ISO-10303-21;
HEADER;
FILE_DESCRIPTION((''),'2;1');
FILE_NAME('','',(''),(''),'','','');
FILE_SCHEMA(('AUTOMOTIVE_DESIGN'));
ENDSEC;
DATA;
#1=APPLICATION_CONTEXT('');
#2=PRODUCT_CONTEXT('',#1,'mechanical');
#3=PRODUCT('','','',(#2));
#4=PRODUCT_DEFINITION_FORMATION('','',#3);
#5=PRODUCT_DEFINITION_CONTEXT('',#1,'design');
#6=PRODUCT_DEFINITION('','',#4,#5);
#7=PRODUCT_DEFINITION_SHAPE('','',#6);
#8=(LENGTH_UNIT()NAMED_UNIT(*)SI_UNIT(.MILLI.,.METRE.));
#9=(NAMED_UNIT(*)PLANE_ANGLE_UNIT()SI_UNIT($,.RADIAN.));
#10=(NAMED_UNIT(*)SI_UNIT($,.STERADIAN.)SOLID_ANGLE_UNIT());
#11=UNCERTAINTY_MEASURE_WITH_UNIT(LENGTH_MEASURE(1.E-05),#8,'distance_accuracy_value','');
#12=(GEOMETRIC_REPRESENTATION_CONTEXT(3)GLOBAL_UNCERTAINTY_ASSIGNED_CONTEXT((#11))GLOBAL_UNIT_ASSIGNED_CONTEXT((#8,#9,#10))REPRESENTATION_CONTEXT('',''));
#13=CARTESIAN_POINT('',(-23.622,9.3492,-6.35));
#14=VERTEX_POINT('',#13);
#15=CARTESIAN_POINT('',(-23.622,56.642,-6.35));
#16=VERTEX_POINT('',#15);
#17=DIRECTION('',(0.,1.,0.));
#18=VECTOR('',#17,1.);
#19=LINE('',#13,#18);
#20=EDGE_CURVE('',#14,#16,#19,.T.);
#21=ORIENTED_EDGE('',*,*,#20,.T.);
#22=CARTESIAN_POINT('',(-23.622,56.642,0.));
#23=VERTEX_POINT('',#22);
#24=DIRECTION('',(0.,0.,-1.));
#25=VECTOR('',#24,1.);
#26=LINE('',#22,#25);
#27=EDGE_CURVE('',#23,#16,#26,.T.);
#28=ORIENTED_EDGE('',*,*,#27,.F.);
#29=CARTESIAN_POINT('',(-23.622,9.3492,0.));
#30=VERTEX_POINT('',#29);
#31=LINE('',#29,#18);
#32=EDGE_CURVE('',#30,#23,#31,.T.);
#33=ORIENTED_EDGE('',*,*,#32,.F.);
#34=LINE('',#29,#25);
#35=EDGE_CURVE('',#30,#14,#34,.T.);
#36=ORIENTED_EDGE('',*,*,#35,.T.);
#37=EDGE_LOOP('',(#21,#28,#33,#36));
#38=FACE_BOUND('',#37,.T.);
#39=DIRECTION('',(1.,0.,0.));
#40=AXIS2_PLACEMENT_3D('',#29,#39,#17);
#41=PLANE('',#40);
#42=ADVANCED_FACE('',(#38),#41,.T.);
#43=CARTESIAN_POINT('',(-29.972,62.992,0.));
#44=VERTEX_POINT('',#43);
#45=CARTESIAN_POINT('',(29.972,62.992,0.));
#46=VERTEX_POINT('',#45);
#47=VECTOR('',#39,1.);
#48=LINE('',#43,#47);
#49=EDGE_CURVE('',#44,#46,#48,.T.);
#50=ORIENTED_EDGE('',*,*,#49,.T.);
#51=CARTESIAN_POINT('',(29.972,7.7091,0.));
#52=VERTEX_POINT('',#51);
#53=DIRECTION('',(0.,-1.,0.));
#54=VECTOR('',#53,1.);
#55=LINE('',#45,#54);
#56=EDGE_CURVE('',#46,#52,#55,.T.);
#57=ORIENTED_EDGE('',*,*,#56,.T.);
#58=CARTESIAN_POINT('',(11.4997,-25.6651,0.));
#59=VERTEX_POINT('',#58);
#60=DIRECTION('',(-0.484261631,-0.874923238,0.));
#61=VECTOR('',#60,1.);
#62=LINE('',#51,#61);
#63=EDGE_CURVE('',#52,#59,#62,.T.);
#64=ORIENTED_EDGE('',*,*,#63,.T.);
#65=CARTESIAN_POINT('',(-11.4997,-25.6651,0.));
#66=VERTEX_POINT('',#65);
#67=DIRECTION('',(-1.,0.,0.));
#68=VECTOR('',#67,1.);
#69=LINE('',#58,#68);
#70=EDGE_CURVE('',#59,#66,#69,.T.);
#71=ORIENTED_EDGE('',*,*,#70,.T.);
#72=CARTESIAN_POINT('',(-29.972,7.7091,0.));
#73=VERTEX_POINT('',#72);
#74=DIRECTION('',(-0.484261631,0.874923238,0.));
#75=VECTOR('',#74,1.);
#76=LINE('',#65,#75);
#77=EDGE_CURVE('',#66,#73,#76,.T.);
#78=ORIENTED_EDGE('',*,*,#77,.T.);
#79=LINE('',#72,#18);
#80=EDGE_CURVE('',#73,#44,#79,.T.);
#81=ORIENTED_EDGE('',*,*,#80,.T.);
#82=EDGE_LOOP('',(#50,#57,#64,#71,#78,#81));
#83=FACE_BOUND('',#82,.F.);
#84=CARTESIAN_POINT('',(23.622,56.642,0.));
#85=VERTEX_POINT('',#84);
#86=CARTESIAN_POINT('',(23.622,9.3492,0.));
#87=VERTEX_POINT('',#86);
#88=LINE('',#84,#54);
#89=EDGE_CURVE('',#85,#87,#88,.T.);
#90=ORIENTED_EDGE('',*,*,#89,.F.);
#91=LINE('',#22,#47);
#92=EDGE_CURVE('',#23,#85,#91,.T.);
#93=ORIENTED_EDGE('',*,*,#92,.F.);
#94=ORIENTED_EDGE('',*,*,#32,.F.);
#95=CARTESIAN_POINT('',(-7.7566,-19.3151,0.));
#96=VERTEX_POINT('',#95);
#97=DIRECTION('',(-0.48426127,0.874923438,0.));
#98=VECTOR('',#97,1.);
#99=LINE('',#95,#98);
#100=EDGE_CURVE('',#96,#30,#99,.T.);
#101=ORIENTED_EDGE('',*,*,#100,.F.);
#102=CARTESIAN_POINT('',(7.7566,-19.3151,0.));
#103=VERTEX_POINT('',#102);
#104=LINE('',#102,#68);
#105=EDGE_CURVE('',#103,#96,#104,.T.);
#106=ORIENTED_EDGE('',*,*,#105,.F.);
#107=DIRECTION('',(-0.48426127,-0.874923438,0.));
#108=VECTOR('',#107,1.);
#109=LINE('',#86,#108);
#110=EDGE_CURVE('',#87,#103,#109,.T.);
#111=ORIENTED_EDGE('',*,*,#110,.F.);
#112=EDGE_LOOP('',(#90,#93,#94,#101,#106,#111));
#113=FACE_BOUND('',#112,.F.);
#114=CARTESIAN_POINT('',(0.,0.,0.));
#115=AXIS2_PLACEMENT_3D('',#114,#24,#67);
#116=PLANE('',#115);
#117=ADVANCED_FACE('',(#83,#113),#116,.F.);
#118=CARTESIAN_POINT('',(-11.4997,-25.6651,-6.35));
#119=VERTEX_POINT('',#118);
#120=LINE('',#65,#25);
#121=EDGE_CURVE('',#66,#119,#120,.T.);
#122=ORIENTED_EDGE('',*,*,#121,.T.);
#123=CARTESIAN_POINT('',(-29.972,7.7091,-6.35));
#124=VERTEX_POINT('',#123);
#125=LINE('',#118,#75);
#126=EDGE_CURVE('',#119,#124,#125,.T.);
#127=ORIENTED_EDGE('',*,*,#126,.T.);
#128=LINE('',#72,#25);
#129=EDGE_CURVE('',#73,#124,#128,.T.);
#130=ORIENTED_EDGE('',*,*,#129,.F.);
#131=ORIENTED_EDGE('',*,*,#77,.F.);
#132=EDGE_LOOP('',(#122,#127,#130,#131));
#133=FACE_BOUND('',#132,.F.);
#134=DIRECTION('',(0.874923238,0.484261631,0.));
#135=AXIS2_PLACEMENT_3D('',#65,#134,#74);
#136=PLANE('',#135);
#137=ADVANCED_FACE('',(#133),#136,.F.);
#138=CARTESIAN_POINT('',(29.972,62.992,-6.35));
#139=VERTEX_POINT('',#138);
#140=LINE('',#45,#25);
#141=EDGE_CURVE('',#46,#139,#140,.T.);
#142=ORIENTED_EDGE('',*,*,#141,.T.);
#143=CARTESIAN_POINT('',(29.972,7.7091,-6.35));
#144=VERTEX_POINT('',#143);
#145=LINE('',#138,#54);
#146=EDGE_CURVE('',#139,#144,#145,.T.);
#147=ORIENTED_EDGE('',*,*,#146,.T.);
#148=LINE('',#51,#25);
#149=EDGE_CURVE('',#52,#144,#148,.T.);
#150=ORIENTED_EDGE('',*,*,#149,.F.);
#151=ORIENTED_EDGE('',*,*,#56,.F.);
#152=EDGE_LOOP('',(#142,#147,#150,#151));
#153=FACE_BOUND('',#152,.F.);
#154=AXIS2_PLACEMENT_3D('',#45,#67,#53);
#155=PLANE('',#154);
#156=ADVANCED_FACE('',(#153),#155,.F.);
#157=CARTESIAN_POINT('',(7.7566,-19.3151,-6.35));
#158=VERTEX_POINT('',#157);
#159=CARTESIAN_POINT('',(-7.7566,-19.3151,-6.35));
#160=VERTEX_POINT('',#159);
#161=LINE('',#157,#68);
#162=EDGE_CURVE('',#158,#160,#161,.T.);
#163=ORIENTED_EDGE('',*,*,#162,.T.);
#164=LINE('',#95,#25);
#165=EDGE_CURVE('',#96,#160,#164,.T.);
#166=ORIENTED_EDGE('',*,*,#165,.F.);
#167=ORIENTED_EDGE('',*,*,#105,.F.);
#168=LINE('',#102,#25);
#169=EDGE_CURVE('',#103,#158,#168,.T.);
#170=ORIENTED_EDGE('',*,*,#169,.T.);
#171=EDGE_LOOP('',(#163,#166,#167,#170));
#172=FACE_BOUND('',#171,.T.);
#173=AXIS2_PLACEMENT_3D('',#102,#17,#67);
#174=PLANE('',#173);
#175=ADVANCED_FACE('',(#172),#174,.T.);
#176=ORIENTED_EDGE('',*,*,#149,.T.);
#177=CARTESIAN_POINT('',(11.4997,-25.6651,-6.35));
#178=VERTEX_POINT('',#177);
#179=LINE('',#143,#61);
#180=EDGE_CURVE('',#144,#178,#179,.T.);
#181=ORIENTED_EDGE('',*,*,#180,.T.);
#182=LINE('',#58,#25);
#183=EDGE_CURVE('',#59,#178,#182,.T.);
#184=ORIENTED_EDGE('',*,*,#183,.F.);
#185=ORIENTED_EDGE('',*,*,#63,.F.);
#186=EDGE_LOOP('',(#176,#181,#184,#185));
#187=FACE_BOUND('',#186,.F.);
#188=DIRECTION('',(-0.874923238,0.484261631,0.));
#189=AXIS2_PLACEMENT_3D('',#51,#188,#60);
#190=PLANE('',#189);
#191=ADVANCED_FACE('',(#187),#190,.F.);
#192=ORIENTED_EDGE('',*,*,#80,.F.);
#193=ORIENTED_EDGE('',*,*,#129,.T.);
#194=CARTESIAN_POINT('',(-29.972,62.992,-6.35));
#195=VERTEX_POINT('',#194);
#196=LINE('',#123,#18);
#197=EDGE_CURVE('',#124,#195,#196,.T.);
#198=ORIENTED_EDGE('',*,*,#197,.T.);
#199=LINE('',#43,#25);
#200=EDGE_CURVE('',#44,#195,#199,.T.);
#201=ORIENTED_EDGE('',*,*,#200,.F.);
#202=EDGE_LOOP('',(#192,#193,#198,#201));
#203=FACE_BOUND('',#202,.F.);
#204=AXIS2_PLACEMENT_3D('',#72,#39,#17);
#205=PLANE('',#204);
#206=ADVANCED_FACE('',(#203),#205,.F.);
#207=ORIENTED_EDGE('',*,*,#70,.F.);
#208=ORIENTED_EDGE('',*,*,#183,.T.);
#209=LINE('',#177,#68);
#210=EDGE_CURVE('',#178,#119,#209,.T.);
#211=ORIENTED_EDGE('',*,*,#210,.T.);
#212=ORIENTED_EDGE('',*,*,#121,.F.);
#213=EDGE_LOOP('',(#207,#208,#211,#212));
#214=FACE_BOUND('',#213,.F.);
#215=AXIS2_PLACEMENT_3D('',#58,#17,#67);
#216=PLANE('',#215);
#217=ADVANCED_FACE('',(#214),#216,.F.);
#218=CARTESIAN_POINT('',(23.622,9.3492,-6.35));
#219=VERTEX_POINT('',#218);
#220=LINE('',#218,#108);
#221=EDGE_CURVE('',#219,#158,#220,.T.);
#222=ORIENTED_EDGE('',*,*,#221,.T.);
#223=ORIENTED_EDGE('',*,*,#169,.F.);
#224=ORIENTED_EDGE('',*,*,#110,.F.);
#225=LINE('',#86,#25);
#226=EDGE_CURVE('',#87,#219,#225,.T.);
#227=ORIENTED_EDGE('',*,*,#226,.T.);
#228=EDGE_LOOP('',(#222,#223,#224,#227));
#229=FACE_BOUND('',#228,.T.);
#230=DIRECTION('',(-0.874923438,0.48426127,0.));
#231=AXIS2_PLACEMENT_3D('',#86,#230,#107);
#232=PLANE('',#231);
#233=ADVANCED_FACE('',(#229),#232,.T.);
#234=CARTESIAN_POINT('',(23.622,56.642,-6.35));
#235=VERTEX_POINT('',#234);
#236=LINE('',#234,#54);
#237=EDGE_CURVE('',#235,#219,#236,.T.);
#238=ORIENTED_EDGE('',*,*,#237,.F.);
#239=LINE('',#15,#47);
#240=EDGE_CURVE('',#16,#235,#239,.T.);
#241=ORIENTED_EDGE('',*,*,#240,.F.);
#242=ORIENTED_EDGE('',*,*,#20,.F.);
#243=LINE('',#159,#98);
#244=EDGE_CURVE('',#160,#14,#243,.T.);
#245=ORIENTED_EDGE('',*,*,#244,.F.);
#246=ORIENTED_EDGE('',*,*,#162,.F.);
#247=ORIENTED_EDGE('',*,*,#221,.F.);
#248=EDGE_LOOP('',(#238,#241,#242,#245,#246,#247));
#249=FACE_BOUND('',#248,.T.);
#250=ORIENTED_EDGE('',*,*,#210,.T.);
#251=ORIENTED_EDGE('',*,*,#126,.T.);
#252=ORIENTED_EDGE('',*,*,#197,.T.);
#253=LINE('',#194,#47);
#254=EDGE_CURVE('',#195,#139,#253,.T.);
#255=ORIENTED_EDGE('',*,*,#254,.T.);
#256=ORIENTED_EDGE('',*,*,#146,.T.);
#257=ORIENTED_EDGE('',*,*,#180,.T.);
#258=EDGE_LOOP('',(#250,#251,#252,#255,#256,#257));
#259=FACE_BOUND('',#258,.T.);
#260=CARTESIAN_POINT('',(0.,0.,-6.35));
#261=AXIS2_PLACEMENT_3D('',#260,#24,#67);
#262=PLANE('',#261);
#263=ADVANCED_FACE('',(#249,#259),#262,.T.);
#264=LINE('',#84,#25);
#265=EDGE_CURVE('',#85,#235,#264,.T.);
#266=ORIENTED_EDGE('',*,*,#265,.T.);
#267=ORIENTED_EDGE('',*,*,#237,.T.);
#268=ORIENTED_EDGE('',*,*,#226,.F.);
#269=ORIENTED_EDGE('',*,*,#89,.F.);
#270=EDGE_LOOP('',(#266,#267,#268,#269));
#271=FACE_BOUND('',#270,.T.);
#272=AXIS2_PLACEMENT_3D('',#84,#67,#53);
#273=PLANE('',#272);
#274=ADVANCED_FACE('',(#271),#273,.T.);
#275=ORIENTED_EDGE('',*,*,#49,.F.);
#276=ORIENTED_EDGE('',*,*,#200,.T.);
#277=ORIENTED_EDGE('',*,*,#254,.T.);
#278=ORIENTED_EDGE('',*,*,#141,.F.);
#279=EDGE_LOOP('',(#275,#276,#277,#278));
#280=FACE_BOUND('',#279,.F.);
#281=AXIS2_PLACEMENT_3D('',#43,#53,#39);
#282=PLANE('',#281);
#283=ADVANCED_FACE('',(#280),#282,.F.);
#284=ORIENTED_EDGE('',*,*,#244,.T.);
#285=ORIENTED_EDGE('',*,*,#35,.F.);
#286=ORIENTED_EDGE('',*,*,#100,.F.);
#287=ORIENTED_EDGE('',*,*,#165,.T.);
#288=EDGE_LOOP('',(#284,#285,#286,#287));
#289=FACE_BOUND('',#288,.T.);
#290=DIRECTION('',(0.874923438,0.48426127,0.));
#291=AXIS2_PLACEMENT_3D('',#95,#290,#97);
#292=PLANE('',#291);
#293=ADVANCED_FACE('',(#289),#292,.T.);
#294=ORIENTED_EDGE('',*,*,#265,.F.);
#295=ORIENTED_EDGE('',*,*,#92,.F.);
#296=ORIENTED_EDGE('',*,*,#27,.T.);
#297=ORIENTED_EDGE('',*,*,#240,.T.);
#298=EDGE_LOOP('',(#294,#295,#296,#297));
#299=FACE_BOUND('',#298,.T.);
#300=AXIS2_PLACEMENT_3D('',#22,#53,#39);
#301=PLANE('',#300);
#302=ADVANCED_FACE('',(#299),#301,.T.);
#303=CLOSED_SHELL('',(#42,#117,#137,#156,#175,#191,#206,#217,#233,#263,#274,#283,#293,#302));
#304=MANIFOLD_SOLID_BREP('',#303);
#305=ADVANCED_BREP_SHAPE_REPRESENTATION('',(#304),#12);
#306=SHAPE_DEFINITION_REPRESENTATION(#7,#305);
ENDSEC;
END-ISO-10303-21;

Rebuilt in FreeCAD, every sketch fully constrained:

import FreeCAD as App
import Part
import Sketcher

V = App.Vector
Q = App.Units.Quantity


def add_polygon(sketch, points):
    """Adds a closed chain of lines whose ends are joined by coincident constraints."""
    first, n = sketch.GeometryCount, len(points)
    for a, b in zip(points, points[1:] + points[:1]):
        sketch.addGeometry(Part.LineSegment(App.Vector(*a, 0), App.Vector(*b, 0)), False)
    for i in range(n):
        sketch.addConstraint(Sketcher.Constraint("Coincident", first + i, 2, first + (i + 1) % n, 1))

doc = App.newDocument("Part")
body = doc.addObject("PartDesign::Body", "Body")

sketch1 = doc.addObject("Sketcher::SketchObject", "Sketch")
body.addObject(sketch1)
sketch1.AttachmentSupport = (doc.XY_Plane, [""])
sketch1.MapMode = "FlatFace"
add_polygon(sketch1, [(-30, 63), (30, 63), (30, 8), (11, -26), (-11, -26), (-30, 8)])
add_polygon(sketch1, [(24, 9), (24, 57), (-24, 57), (-24, 9), (-8, -19), (8, -19)])
sketch1.addConstraint(Sketcher.Constraint("Horizontal", 0))
sketch1.addConstraint(Sketcher.Constraint("Vertical", 1))
sketch1.addConstraint(Sketcher.Constraint("Horizontal", 3))
sketch1.addConstraint(Sketcher.Constraint("Vertical", 5))
sketch1.addConstraint(Sketcher.Constraint("Vertical", 6))
sketch1.addConstraint(Sketcher.Constraint("Horizontal", 7))
sketch1.addConstraint(Sketcher.Constraint("Vertical", 8))
sketch1.addConstraint(Sketcher.Constraint("Horizontal", 10))
sketch1.addConstraint(Sketcher.Constraint("Symmetric", 1, 2, 4, 2, -2))
sketch1.addConstraint(Sketcher.Constraint("Symmetric", 8, 2, 11, 2, -2))
sketch1.addConstraint(Sketcher.Constraint("Parallel", 4, 9))
sketch1.addConstraint(Sketcher.Constraint("Parallel", 2, 11))
sketch1.addConstraint(Sketcher.Constraint("Equal", 2, 4))
sketch1.addConstraint(Sketcher.Constraint("DistanceX", 6, 2, 0, 2, Q("0.25 in")))
sketch1.addConstraint(Sketcher.Constraint("DistanceY", 6, 2, 0, 2, Q("0.25 in")))
sketch1.addConstraint(Sketcher.Constraint("DistanceY", 3, 2, 9, 2, Q("0.25 in")))
sketch1.addConstraint(Sketcher.Constraint("DistanceX", 0, 1, 0, 2, Q("2.36 in")))
sketch1.addConstraint(Sketcher.Constraint("DistanceY", -1, 1, 0, 2, Q("2.48 in")))
sketch1.addConstraint(Sketcher.Constraint("DistanceX", 3, 2, 3, 1, Q("0.9055 in")))
sketch1.addConstraint(Sketcher.Constraint("DistanceY", 1, 2, 1, 1, Q("2.1765 in")))
sketch1.addConstraint(Sketcher.Constraint("DistanceX", 10, 1, 10, 2, Q("15.5132 mm")))
sketch1.addConstraint(Sketcher.Constraint("DistanceY", 6, 1, 6, 2, Q("47.2928 mm")))
pad1 = doc.addObject("PartDesign::Pad", "Pad")
body.addObject(pad1)
pad1.Profile = sketch1
pad1.Length = Q("0.25 in")
pad1.Reversed = True

doc.recompute()
